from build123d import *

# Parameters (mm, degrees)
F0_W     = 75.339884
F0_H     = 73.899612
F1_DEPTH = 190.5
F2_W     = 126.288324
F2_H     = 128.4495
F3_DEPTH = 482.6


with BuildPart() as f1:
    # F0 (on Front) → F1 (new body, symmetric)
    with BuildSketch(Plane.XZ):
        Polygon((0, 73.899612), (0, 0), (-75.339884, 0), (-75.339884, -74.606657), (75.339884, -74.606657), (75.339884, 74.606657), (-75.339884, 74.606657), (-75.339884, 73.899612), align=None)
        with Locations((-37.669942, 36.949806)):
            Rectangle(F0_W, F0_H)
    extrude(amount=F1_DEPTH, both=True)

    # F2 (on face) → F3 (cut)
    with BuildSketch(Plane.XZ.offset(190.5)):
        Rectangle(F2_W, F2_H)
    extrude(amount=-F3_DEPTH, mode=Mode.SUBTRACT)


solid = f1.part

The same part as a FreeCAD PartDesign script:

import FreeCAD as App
import Part
import Sketcher
from FreeCAD import Vector
Q = App.Units.Quantity

doc = App.newDocument("Part")
body = doc.addObject("PartDesign::Body", "Body")

sketch1 = body.newObject("Sketcher::SketchObject", "Sketch")
sketch1.AttachmentSupport = (doc.getObject("XZ_Plane"), [""])
sketch1.MapMode = "FlatFace"
sketch1.addGeometry([
    Part.LineSegment(Vector(-75.339884, -74.606657, 0), Vector(75.339884, -74.606657, 0)),
    Part.LineSegment(Vector(75.339884, -74.606657, 0), Vector(75.339884, 74.606657, 0)),
    Part.LineSegment(Vector(75.339884, 74.606657, 0), Vector(-75.339884, 74.606657, 0)),
    Part.LineSegment(Vector(-75.339884, 74.606657, 0), Vector(-75.339884, -74.606657, 0)),
], False)
sketch1.addConstraint([
    Sketcher.Constraint("Coincident", 0, 2, 1, 1),
    Sketcher.Constraint("Coincident", 1, 2, 2, 1),
    Sketcher.Constraint("Coincident", 2, 2, 3, 1),
    Sketcher.Constraint("Coincident", 3, 2, 0, 1),
    Sketcher.Constraint("Horizontal", 0),
    Sketcher.Constraint("Vertical", 1),
    Sketcher.Constraint("Horizontal", 2),
    Sketcher.Constraint("Vertical", 3),
    Sketcher.Constraint("Symmetric", 0, 2, 2, 2, -1, 1),
    Sketcher.Constraint("DistanceX", 0, 1, 0, 2, Q("150.679768 mm")),
    Sketcher.Constraint("DistanceY", 1, 1, 1, 2, Q("149.213314 mm")),
])
pad1 = body.newObject("PartDesign::Pad", "Pad")
pad1.Profile = sketch1
pad1.Length = Q("15 in")
pad1.Midplane = True

sketch2 = body.newObject("Sketcher::SketchObject", "Sketch001")
sketch2.AttachmentSupport = (doc.getObject("XZ_Plane"), [""])
sketch2.MapMode = "FlatFace"
sketch2.AttachmentOffset = App.Placement(Vector(0, 0, 7.5 * 25.4), App.Rotation())
sketch2.addGeometry([
    Part.LineSegment(Vector(-63.144162, 64.22475, 0), Vector(-63.144162, -64.22475, 0)),
    Part.LineSegment(Vector(-63.144162, -64.22475, 0), Vector(63.144162, -64.22475, 0)),
    Part.LineSegment(Vector(63.144162, -64.22475, 0), Vector(63.144162, 64.22475, 0)),
    Part.LineSegment(Vector(63.144162, 64.22475, 0), Vector(-63.144162, 64.22475, 0)),
], False)
sketch2.addConstraint([
    Sketcher.Constraint("Coincident", 0, 2, 1, 1),
    Sketcher.Constraint("Coincident", 1, 2, 2, 1),
    Sketcher.Constraint("Coincident", 2, 2, 3, 1),
    Sketcher.Constraint("Coincident", 3, 2, 0, 1),
    Sketcher.Constraint("Vertical", 0),
    Sketcher.Constraint("Horizontal", 1),
    Sketcher.Constraint("Vertical", 2),
    Sketcher.Constraint("Horizontal", 3),
    Sketcher.Constraint("Symmetric", 0, 2, 2, 2, -1, 1),
    Sketcher.Constraint("DistanceY", 0, 2, 0, 1, Q("128.4495 mm")),
    Sketcher.Constraint("DistanceX", 1, 1, 1, 2, Q("126.288324 mm")),
])
pocket1 = body.newObject("PartDesign::Pocket", "Pocket")
pocket1.Profile = sketch2
pocket1.Length = Q("19 in")

doc.recompute()
